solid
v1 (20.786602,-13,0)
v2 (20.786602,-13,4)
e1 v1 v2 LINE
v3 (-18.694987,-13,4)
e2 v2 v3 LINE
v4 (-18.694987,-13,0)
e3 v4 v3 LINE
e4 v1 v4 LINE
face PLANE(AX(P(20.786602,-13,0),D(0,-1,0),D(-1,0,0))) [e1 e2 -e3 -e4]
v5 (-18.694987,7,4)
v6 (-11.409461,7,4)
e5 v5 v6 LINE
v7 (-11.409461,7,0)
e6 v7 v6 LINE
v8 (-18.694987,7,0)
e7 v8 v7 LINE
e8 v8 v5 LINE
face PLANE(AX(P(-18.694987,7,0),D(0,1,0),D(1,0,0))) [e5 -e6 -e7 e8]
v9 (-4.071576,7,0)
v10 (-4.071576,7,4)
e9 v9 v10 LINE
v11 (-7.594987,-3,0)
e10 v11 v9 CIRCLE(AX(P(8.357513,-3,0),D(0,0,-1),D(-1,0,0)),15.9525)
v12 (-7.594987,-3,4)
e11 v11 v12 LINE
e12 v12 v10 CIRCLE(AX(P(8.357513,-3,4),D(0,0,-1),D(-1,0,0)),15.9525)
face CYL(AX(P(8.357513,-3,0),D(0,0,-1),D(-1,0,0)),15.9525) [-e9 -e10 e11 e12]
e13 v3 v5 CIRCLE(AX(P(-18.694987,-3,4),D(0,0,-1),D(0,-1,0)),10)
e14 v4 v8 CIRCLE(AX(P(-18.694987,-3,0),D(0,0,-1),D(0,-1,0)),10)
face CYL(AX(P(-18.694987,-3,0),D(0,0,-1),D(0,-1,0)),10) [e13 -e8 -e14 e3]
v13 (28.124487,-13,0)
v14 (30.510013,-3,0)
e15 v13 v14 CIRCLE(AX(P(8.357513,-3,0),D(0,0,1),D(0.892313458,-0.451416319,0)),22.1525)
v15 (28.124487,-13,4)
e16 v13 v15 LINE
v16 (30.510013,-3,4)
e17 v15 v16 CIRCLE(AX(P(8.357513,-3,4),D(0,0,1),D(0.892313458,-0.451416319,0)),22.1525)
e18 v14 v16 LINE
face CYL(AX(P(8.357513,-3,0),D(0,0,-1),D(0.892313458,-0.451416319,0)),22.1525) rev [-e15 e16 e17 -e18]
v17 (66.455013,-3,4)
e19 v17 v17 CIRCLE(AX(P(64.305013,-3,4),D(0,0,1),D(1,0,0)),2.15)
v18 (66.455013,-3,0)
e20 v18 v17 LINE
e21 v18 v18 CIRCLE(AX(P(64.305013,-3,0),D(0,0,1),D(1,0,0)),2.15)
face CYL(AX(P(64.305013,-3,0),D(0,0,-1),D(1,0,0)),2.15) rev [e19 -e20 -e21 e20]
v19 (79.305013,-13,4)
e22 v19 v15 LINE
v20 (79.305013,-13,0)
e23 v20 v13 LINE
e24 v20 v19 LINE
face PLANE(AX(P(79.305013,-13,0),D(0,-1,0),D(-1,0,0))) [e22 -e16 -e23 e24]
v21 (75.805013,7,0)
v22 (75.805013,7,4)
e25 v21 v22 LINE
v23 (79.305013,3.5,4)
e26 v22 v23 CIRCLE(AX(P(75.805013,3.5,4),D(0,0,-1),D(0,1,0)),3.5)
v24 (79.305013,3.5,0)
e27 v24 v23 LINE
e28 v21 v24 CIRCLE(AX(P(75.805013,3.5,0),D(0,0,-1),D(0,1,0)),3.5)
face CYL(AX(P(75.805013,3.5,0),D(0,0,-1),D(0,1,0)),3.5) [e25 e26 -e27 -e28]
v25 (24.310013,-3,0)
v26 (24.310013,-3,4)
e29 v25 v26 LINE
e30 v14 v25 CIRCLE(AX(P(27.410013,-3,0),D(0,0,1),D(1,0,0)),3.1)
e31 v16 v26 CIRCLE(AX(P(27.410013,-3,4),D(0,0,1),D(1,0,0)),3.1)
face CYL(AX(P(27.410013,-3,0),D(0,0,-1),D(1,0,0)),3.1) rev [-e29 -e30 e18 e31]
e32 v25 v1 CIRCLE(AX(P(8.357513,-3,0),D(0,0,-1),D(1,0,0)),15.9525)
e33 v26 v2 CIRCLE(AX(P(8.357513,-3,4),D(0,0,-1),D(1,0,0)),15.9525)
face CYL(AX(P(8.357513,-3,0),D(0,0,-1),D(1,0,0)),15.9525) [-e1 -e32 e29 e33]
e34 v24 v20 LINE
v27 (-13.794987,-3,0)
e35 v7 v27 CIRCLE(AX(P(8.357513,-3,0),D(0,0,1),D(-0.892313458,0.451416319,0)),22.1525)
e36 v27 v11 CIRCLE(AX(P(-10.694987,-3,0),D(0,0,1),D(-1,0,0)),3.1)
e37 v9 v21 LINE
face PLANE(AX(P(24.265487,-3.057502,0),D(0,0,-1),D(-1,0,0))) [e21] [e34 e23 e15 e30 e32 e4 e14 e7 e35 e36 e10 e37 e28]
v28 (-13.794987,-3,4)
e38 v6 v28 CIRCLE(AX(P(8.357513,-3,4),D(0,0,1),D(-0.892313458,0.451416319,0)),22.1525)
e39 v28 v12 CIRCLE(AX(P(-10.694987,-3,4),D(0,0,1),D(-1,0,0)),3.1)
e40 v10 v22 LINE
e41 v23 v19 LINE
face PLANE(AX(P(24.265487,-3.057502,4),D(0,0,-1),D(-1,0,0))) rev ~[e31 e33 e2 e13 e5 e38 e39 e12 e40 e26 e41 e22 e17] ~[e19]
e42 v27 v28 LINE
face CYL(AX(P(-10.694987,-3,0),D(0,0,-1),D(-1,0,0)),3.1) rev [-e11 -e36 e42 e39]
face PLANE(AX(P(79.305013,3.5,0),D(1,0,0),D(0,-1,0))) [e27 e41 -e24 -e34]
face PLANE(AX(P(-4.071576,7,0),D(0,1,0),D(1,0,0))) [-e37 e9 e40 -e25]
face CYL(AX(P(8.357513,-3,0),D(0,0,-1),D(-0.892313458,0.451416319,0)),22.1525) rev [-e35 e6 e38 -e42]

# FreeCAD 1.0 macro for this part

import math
import FreeCAD as App
import Part
import Sketcher
from FreeCAD import Vector

doc = App.newDocument("Part")
body = doc.addObject("PartDesign::Body", "Body")

# Sketch on XY plane
sketch1 = body.newObject("Sketcher::SketchObject", "Sketch")
sketch1.AttachmentSupport = (doc.getObject("XY_Plane"), [""])
sketch1.MapMode = "FlatFace"
sketch1.addGeometry([
    Part.LineSegment(Vector(-18.7, -13, 0), Vector(20.8, -13, 0)),  # 0
    Part.ArcOfCircle(Part.Circle(Vector(8.4, -3, 0), Vector(0, 0, 1), 16), math.radians(-39), math.radians(0)),  # 1
    Part.ArcOfCircle(Part.Circle(Vector(27.4, -3, 0), Vector(0, 0, 1), 3.1), math.radians(0), math.radians(180)),  # 2
    Part.ArcOfCircle(Part.Circle(Vector(8.4, -3, 0), Vector(0, 0, 1), 22.2), math.radians(-27), math.radians(0)),  # 3
    Part.LineSegment(Vector(28.1, -13, 0), Vector(79.3, -13, 0)),  # 4
    Part.LineSegment(Vector(79.3, -13, 0), Vector(79.3, 3.5, 0)),  # 5
    Part.ArcOfCircle(Part.Circle(Vector(75.8, 3.5, 0), Vector(0, 0, 1), 3.5), math.radians(0), math.radians(90)),  # 6
    Part.LineSegment(Vector(75.8, 7, 0), Vector(-4.1, 7, 0)),  # 7
    Part.ArcOfCircle(Part.Circle(Vector(8.4, -3, 0), Vector(0, 0, 1), 16), math.radians(141), math.radians(180)),  # 8
    Part.ArcOfCircle(Part.Circle(Vector(-10.7, -3, 0), Vector(0, 0, 1), 3.1), math.radians(180), math.radians(360)),  # 9
    Part.ArcOfCircle(Part.Circle(Vector(8.4, -3, 0), Vector(0, 0, 1), 22.2), math.radians(153), math.radians(180)),  # 10
    Part.LineSegment(Vector(-11.4, 7, 0), Vector(-18.7, 7, 0)),  # 11
    Part.ArcOfCircle(Part.Circle(Vector(-18.7, -3, 0), Vector(0, 0, 1), 10), math.radians(90), math.radians(270)),  # 12
    Part.Circle(Vector(64.3, -3, 0), Vector(0, 0, 1), 2.1),  # 13
], False)
sketch1.addConstraint([
    Sketcher.Constraint("Coincident", 0, 2, 1, 1),
    Sketcher.Constraint("Tangent", 1, 2, 2, 2),
    Sketcher.Constraint("Tangent", 2, 1, 3, 2),
    Sketcher.Constraint("Coincident", 3, 1, 4, 1),
    Sketcher.Constraint("Coincident", 4, 2, 5, 1),
    Sketcher.Constraint("Tangent", 5, 2, 6, 1),
    Sketcher.Constraint("Tangent", 6, 2, 7, 1),
    Sketcher.Constraint("Coincident", 7, 2, 8, 1),
    Sketcher.Constraint("Tangent", 8, 2, 9, 2),
    Sketcher.Constraint("Tangent", 9, 1, 10, 2),
    Sketcher.Constraint("Coincident", 10, 1, 11, 1),
    Sketcher.Constraint("Tangent", 11, 2, 12, 1),
    Sketcher.Constraint("Tangent", 12, 2, 0, 1),
    Sketcher.Constraint("Horizontal", 0),
    Sketcher.Constraint("Horizontal", 4),
    Sketcher.Constraint("Vertical", 5),
    Sketcher.Constraint("Horizontal", 7),
    Sketcher.Constraint("Horizontal", 11),
    Sketcher.Constraint("Coincident", 3, 3, 1, 3),
    Sketcher.Constraint("Coincident", 8, 3, 1, 3),
    Sketcher.Constraint("Coincident", 10, 3, 1, 3),
    Sketcher.Constraint("Equal", 1, 8),
    Sketcher.Constraint("Equal", 2, 9),
    Sketcher.Constraint("Horizontal", 1, 3, 2, 3),
    Sketcher.Constraint("Horizontal", 8, 3, 9, 3),
    Sketcher.Constraint("Horizontal", 10, 3, 12, 3),
    Sketcher.Constraint("Horizontal", 12, 3, 13, 3),
    Sketcher.Constraint("Horizontal", 0, 2, 3, 1),
    Sketcher.Constraint("Horizontal", 7, 2, 10, 1),
    Sketcher.Constraint("Radius", 12, 10.0),
    Sketcher.Constraint("Diameter", 13, 4.3),
    Sketcher.Constraint("Radius", 2, 3.1),
    Sketcher.Constraint("Radius", 6, 3.5),
    Sketcher.Constraint("DistanceY", 1, 3, -1, 1, 3.0),
    Sketcher.Constraint("DistanceX", 12, 3, 9, 3, 8.0),
    Sketcher.Constraint("DistanceX", 13, 3, 4, 2, 15.0),
    Sketcher.Constraint("Radius", 1, 15.9525),
    Sketcher.Constraint("DistanceX", 9, 3, 6, 3, 86.5),
    Sketcher.Constraint("DistanceX", 10, 1, -1, 1, 11.409461),
])
pad1 = body.newObject("PartDesign::Pad", "Pad")
pad1.Profile = sketch1
pad1.Length = 4

doc.recompute()
